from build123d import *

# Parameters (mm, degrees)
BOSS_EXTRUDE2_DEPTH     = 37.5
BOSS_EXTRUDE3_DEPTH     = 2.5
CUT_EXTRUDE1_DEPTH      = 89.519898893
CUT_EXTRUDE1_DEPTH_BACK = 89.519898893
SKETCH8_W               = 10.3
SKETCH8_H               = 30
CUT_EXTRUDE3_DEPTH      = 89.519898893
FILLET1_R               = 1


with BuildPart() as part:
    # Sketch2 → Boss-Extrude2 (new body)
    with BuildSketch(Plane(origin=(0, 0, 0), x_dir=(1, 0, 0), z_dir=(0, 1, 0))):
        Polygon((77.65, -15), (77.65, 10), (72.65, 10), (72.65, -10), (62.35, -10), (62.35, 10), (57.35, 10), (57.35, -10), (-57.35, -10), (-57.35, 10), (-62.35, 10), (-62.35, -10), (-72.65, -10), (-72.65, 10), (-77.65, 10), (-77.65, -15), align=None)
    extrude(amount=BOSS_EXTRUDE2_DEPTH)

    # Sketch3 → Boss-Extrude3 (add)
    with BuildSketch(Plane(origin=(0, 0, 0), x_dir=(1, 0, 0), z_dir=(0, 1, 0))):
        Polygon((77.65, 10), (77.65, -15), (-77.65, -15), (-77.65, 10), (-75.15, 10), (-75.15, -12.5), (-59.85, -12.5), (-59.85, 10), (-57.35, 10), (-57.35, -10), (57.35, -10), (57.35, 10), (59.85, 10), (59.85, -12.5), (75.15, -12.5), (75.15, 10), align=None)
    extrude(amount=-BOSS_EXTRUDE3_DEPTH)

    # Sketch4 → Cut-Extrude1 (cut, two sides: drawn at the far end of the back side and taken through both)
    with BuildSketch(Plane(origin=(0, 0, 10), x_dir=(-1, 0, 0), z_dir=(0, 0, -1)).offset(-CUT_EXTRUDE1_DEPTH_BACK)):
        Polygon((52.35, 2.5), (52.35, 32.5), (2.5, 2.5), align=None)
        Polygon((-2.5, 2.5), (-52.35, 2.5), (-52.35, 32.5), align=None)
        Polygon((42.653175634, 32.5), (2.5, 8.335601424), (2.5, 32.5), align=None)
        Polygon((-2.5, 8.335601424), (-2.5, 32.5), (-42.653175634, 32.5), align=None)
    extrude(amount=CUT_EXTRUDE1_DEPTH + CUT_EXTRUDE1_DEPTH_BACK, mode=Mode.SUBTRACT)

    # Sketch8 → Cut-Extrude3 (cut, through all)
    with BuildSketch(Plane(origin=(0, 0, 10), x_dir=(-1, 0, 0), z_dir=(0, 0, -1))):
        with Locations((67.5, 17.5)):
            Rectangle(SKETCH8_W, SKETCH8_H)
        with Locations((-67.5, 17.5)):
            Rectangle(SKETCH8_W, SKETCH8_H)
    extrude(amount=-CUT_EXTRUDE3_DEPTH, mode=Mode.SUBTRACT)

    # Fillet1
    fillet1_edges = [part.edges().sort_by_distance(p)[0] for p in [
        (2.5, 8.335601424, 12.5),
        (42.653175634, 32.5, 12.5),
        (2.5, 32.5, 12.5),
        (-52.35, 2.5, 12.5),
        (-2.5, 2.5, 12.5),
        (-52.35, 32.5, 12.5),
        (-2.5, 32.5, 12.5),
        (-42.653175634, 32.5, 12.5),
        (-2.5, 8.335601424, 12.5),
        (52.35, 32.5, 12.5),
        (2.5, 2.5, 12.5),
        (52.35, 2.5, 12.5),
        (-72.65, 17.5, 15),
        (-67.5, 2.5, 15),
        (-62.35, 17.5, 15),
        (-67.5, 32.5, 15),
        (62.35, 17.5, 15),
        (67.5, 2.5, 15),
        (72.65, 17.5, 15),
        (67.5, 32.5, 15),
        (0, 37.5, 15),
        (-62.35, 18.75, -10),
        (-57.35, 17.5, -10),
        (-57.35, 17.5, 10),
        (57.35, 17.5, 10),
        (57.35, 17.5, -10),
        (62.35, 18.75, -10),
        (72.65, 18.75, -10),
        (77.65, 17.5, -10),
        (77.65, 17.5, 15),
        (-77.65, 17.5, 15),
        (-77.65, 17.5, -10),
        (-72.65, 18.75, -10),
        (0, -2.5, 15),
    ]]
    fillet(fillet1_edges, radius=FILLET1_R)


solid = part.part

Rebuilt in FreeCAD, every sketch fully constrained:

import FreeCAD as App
import Part
import Sketcher


def edges_at(feature, points):
    """Names of the edges that pass closest to the given points."""
    edges = feature.Shape.Edges
    near = lambda p: min(range(len(edges)), key=lambda i: edges[i].distToShape(Part.Vertex(*p))[0])
    return sorted({f"Edge{near(p) + 1}" for p in points})


def add_polygon(sketch, points):
    """Adds a closed chain of lines whose ends are joined by coincident constraints."""
    first, n = sketch.GeometryCount, len(points)
    for a, b in zip(points, points[1:] + points[:1]):
        sketch.addGeometry(Part.LineSegment(App.Vector(*a, 0), App.Vector(*b, 0)), False)
    for i in range(n):
        sketch.addConstraint(Sketcher.Constraint("Coincident", first + i, 2, first + (i + 1) % n, 1))

doc = App.newDocument("Part")
body = doc.addObject("PartDesign::Body", "Body")

sketch1 = body.newObject("Sketcher::SketchObject", "Sketch")
sketch1.AttachmentSupport = (doc.getObject("XZ_Plane"), [""])
sketch1.MapMode = "FlatFace"
add_polygon(sketch1, [(77.65, 15), (77.65, -10), (72.65, -10), (72.65, 10), (62.35, 10), (62.35, -10), (57.35, -10), (57.35, 10), (-57.35, 10), (-57.35, -10), (-62.35, -10), (-62.35, 10), (-72.65, 10), (-72.65, -10), (-77.65, -10), (-77.65, 15)])
sketch1.addConstraint([
    Sketcher.Constraint("Vertical", 0),
    Sketcher.Constraint("Horizontal", 1),
    Sketcher.Constraint("Vertical", 2),
    Sketcher.Constraint("Horizontal", 3),
    Sketcher.Constraint("Vertical", 4),
    Sketcher.Constraint("Horizontal", 5),
    Sketcher.Constraint("Vertical", 6),
    Sketcher.Constraint("Horizontal", 7),
    Sketcher.Constraint("Vertical", 8),
    Sketcher.Constraint("Horizontal", 9),
    Sketcher.Constraint("Vertical", 10),
    Sketcher.Constraint("Horizontal", 11),
    Sketcher.Constraint("Vertical", 12),
    Sketcher.Constraint("Horizontal", 13),
    Sketcher.Constraint("Vertical", 14),
    Sketcher.Constraint("Horizontal", 15),
    Sketcher.Constraint("Symmetric", 5, 2, 7, 2, -1, 1),
    Sketcher.Constraint("Symmetric", 3, 2, 9, 2, -1, 1),
    Sketcher.Constraint("Symmetric", 1, 2, 11, 2, -1, 1),
    Sketcher.Constraint("Symmetric", 0, 2, 13, 2, -2),
    Sketcher.Constraint("Horizontal", 1, 2, 4, 2),
    Sketcher.Constraint("Horizontal", 3, 2, 6, 2),
    Sketcher.Constraint("Equal", 1, 5),
    Sketcher.Constraint("DistanceX", 1, 2, 1, 1, 5.0),
    Sketcher.Constraint("DistanceY", 0, 2, 0, 1, 25.0),
    Sketcher.Constraint("DistanceY", 2, 1, 2, 2, 20.0),
    Sketcher.Constraint("DistanceX", 3, 2, 3, 1, 10.3),
    Sketcher.Constraint("DistanceX", 7, 2, 7, 1, 114.7),
])
pad1 = body.newObject("PartDesign::Pad", "Pad")
pad1.Profile = sketch1
pad1.Length = 37.5
pad1.Reversed = True

sketch2 = body.newObject("Sketcher::SketchObject", "Sketch001")
sketch2.AttachmentSupport = (doc.getObject("XZ_Plane"), [""])
sketch2.MapMode = "FlatFace"
add_polygon(sketch2, [(77.65, 15), (77.65, -10), (75.15, -10), (75.15, 12.5), (59.85, 12.5), (59.85, -10), (57.35, -10), (57.35, 10), (-57.35, 10), (-57.35, -10), (-59.85, -10), (-59.85, 12.5), (-75.15, 12.5), (-75.15, -10), (-77.65, -10), (-77.65, 15)])
sketch2.addConstraint([
    Sketcher.Constraint("Vertical", 0),
    Sketcher.Constraint("Horizontal", 1),
    Sketcher.Constraint("Vertical", 2),
    Sketcher.Constraint("Horizontal", 3),
    Sketcher.Constraint("Vertical", 4),
    Sketcher.Constraint("Horizontal", 5),
    Sketcher.Constraint("Vertical", 6),
    Sketcher.Constraint("Horizontal", 7),
    Sketcher.Constraint("Vertical", 8),
    Sketcher.Constraint("Horizontal", 9),
    Sketcher.Constraint("Vertical", 10),
    Sketcher.Constraint("Horizontal", 11),
    Sketcher.Constraint("Vertical", 12),
    Sketcher.Constraint("Horizontal", 13),
    Sketcher.Constraint("Vertical", 14),
    Sketcher.Constraint("Horizontal", 15),
    Sketcher.Constraint("Symmetric", 5, 2, 7, 2, -1, 1),
    Sketcher.Constraint("Symmetric", 4, 2, 9, 2, -2),
    Sketcher.Constraint("Symmetric", 2, 2, 11, 2, -2),
    Sketcher.Constraint("Symmetric", 0, 2, 13, 2, -2),
    Sketcher.Constraint("Horizontal", 1, 2, 4, 2),
    Sketcher.Constraint("Equal", 1, 5),
    Sketcher.Constraint("DistanceY", 0, 2, 0, 1, 25.0),
    Sketcher.Constraint("DistanceY", 6, 1, 6, 2, 20.0),
    Sketcher.Constraint("DistanceX", 1, 2, 1, 1, 2.5),
    Sketcher.Constraint("DistanceX", 3, 2, 3, 1, 15.3),
    Sketcher.Constraint("DistanceX", 7, 2, 7, 1, 114.7),
    Sketcher.Constraint("DistanceY", 2, 1, 2, 2, 22.5),
])
pad2 = body.newObject("PartDesign::Pad", "Pad001")
pad2.Profile = sketch2
pad2.Length = 2.5

sketch3 = body.newObject("Sketcher::SketchObject", "Sketch002")
sketch3.AttachmentSupport = (doc.getObject("XY_Plane"), [""])
sketch3.MapMode = "FlatFace"
sketch3.AttachmentOffset = App.Placement(App.Vector(0, 0, 10), App.Rotation())
add_polygon(sketch3, [(-52.35, 2.5), (-52.35, 32.5), (-2.5, 2.5)])
add_polygon(sketch3, [(52.35, 2.5), (2.5, 2.5), (52.35, 32.5)])
add_polygon(sketch3, [(-2.5, 8.335601), (-42.653176, 32.5), (-2.5, 32.5)])
add_polygon(sketch3, [(2.5, 8.335601), (2.5, 32.5), (42.653176, 32.5)])
sketch3.addConstraint([
    Sketcher.Constraint("Vertical", 0),
    Sketcher.Constraint("Horizontal", 2),
    Sketcher.Constraint("Horizontal", 3),
    Sketcher.Constraint("Vertical", 5),
    Sketcher.Constraint("Horizontal", 7),
    Sketcher.Constraint("Vertical", 8),
    Sketcher.Constraint("Vertical", 9),
    Sketcher.Constraint("Horizontal", 10),
    Sketcher.Constraint("Symmetric", 1, 2, 3, 2, -2),
    Sketcher.Constraint("Symmetric", 0, 2, 4, 2, -2),
    Sketcher.Constraint("Symmetric", 7, 2, 9, 2, -2),
    Sketcher.Constraint("Parallel", 1, 6),
    Sketcher.Constraint("Parallel", 4, 11),
    Sketcher.Constraint("Horizontal", 4, 2, 6, 2),
    Sketcher.Constraint("Horizontal", 8, 2, 11, 2),
    Sketcher.Constraint("Vertical", 1, 2, 7, 2),
    Sketcher.Constraint("DistanceY", 0, 1, 0, 2, 30.0),
    Sketcher.Constraint("DistanceX", 1, 2, 3, 2, 5.0),
    Sketcher.Constraint("DistanceX", 2, 2, 2, 1, 49.85),
    Sketcher.Constraint("DistanceY", -1, 1, 0, 2, 32.5),
    Sketcher.Constraint("DistanceY", 8, 2, 8, 1, 24.164399),
])
pocket1 = body.newObject("PartDesign::Pocket", "Pocket")
pocket1.Profile = sketch3
pocket1.Type = "ThroughAll"
pocket1.Midplane = True

sketch4 = body.newObject("Sketcher::SketchObject", "Sketch003")
sketch4.AttachmentSupport = (doc.getObject("XY_Plane"), [""])
sketch4.MapMode = "FlatFace"
sketch4.AttachmentOffset = App.Placement(App.Vector(0, 0, 10), App.Rotation())
add_polygon(sketch4, [(-62.35, 32.5), (-62.35, 2.5), (-72.65, 2.5), (-72.65, 32.5)])
add_polygon(sketch4, [(72.65, 32.5), (72.65, 2.5), (62.35, 2.5), (62.35, 32.5)])
sketch4.addConstraint([
    Sketcher.Constraint("Vertical", 0),
    Sketcher.Constraint("Horizontal", 1),
    Sketcher.Constraint("Vertical", 2),
    Sketcher.Constraint("Horizontal", 3),
    Sketcher.Constraint("Vertical", 4),
    Sketcher.Constraint("Horizontal", 5),
    Sketcher.Constraint("Vertical", 6),
    Sketcher.Constraint("Horizontal", 7),
    Sketcher.Constraint("Symmetric", 1, 2, 4, 2, -2),
    Sketcher.Constraint("Symmetric", 3, 2, 6, 2, -2),
    Sketcher.Constraint("DistanceY", 0, 2, 0, 1, 30.0),
    Sketcher.Constraint("DistanceX", 1, 2, 1, 1, 10.3),
    Sketcher.Constraint("DistanceX", 0, 2, 4, 2, 135.0),
    Sketcher.Constraint("DistanceY", -1, 1, 0, 2, 2.5),
])
pocket2 = body.newObject("PartDesign::Pocket", "Pocket001")
pocket2.Profile = sketch4
pocket2.Type = "ThroughAll"
pocket2.Reversed = True
doc.recompute()

fillet = body.newObject("PartDesign::Fillet", "Fillet")
fillet.Base = (pocket2, edges_at(pocket2, [
    (2.5, 8.336, 12.5),
    (42.653, 32.5, 12.5),
    (2.5, 32.5, 12.5),
    (-52.35, 2.5, 12.5),
    (-2.5, 2.5, 12.5),
    (-52.35, 32.5, 12.5),
    (-2.5, 32.5, 12.5),
    (-42.653, 32.5, 12.5),
    (-2.5, 8.336, 12.5),
    (52.35, 32.5, 12.5),
    (2.5, 2.5, 12.5),
    (52.35, 2.5, 12.5),
    (-72.65, 17.5, 15),
    (-67.5, 2.5, 15),
    (-62.35, 17.5, 15),
    (-67.5, 32.5, 15),
    (62.35, 17.5, 15),
    (67.5, 2.5, 15),
    (72.65, 17.5, 15),
    (67.5, 32.5, 15),
    (0, 37.5, 15),
    (-62.35, 18.75, -10),
    (-57.35, 17.5, -10),
    (-57.35, 17.5, 10),
    (57.35, 17.5, 10),
    (57.35, 17.5, -10),
    (62.35, 18.75, -10),
    (72.65, 18.75, -10),
    (77.65, 17.5, -10),
    (77.65, 17.5, 15),
    (-77.65, 17.5, 15),
    (-77.65, 17.5, -10),
    (-72.65, 18.75, -10),
    (0, -2.5, 15),
]))
fillet.Radius = 1

doc.recompute()
